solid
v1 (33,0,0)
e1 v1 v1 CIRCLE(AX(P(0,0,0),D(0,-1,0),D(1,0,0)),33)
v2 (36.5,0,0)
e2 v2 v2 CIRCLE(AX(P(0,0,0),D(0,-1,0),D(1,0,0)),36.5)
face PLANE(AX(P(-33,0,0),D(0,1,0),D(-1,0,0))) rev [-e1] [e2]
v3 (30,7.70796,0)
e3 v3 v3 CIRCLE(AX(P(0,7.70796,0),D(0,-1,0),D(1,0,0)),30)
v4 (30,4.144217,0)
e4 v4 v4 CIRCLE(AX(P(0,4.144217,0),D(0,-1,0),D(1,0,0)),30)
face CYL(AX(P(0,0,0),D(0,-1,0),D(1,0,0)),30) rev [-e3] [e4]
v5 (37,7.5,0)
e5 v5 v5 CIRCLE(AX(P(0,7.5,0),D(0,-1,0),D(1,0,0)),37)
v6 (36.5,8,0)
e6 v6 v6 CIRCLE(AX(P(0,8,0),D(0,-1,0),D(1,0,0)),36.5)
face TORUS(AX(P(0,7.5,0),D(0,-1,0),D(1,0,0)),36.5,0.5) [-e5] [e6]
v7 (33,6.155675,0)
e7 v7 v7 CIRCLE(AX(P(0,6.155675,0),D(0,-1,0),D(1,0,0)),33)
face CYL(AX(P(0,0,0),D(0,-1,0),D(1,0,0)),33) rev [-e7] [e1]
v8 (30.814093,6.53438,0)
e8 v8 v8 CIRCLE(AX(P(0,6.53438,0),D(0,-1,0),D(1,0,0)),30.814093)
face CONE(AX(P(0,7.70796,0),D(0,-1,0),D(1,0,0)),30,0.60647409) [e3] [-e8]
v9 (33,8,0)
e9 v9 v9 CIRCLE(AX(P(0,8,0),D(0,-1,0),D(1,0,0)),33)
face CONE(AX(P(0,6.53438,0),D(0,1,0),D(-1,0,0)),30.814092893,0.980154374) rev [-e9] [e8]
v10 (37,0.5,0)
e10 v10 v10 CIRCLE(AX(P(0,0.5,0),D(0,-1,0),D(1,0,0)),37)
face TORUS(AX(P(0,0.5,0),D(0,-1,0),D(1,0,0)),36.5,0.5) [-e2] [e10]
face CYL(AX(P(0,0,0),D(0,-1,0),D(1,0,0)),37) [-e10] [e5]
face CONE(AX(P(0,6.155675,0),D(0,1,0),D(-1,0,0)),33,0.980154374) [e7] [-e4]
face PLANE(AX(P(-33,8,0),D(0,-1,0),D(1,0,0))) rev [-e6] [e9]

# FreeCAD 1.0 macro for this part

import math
import FreeCAD as App
import Part
import Sketcher
Q = App.Units.Quantity

doc = App.newDocument("Part")
body = doc.addObject("PartDesign::Body", "Body")

sketch1 = body.newObject("Sketcher::SketchObject", "Sketch")
sketch1.AttachmentSupport = (doc.getObject("XY_Plane"), [""])
sketch1.MapMode = "FlatFace"
sketch1.addGeometry([
    Part.LineSegment(App.Vector(-36.5, 0, 0), App.Vector(-33, 0, 0)),
    Part.LineSegment(App.Vector(-33, 0, 0), App.Vector(-33, 6.155675, 0)),
    Part.LineSegment(App.Vector(-33, 6.155675, 0), App.Vector(-30, 4.144217, 0)),
    Part.LineSegment(App.Vector(-30, 4.144217, 0), App.Vector(-30, 7.70796, 0)),
    Part.LineSegment(App.Vector(-30, 7.70796, 0), App.Vector(-30.814093, 6.53438, 0)),
    Part.LineSegment(App.Vector(-30.814093, 6.53438, 0), App.Vector(-33, 8, 0)),
    Part.LineSegment(App.Vector(-33, 8, 0), App.Vector(-36.5, 8, 0)),
    Part.ArcOfCircle(Part.Circle(App.Vector(-36.5, 7.5, 0), App.Vector(0, 0, 1), 0.5), math.radians(90), math.radians(180)),
    Part.LineSegment(App.Vector(-37, 7.5, 0), App.Vector(-37, 0.5, 0)),
    Part.ArcOfCircle(Part.Circle(App.Vector(-36.5, 0.5, 0), App.Vector(0, 0, 1), 0.5), math.radians(180), math.radians(270)),
], False)
sketch1.addConstraint([
    Sketcher.Constraint("Coincident", 0, 2, 1, 1),
    Sketcher.Constraint("Coincident", 1, 2, 2, 1),
    Sketcher.Constraint("Coincident", 2, 2, 3, 1),
    Sketcher.Constraint("Coincident", 3, 2, 4, 1),
    Sketcher.Constraint("Coincident", 4, 2, 5, 1),
    Sketcher.Constraint("Coincident", 5, 2, 6, 1),
    Sketcher.Constraint("Tangent", 6, 2, 7, 1),
    Sketcher.Constraint("Tangent", 7, 2, 8, 1),
    Sketcher.Constraint("Tangent", 8, 2, 9, 1),
    Sketcher.Constraint("Tangent", 9, 2, 0, 1),
    Sketcher.Constraint("Horizontal", 0),
    Sketcher.Constraint("Vertical", 1),
    Sketcher.Constraint("Vertical", 3),
    Sketcher.Constraint("Horizontal", 6),
    Sketcher.Constraint("Vertical", 8),
    Sketcher.Constraint("Equal", 7, 9),
    Sketcher.Constraint("PointOnObject", 0, 2, -1),
    Sketcher.Constraint("Parallel", 2, 5),
    Sketcher.Constraint("Vertical", 1, 2, 5, 2),
    Sketcher.Constraint("Radius", 7, Q("0.5 mm")),
    Sketcher.Constraint("DistanceY", 8, 2, 8, 1, Q("7 mm")),
    Sketcher.Constraint("DistanceX", 0, 1, 0, 2, Q("3.5 mm")),
    Sketcher.Constraint("DistanceX", 0, 2, -1, 1, Q("33 mm")),
    Sketcher.Constraint("DistanceX", 2, 2, -1, 1, Q("30 mm")),
    Sketcher.Constraint("Distance", 4, Q("1.428299 mm")),
    Sketcher.Constraint("Distance", 2, Q("3.611919 mm")),
    Sketcher.Constraint("DistanceY", 1, 1, 1, 2, Q("6.155675 mm")),
    Sketcher.Constraint("DistanceY", 3, 1, 3, 2, Q("3.563743 mm")),
])
revolution = body.newObject("PartDesign::Revolution", "Revolution")
revolution.Profile = sketch1
revolution.ReferenceAxis = (sketch1, ["V_Axis"])
revolution.Angle = 360

doc.recompute()
